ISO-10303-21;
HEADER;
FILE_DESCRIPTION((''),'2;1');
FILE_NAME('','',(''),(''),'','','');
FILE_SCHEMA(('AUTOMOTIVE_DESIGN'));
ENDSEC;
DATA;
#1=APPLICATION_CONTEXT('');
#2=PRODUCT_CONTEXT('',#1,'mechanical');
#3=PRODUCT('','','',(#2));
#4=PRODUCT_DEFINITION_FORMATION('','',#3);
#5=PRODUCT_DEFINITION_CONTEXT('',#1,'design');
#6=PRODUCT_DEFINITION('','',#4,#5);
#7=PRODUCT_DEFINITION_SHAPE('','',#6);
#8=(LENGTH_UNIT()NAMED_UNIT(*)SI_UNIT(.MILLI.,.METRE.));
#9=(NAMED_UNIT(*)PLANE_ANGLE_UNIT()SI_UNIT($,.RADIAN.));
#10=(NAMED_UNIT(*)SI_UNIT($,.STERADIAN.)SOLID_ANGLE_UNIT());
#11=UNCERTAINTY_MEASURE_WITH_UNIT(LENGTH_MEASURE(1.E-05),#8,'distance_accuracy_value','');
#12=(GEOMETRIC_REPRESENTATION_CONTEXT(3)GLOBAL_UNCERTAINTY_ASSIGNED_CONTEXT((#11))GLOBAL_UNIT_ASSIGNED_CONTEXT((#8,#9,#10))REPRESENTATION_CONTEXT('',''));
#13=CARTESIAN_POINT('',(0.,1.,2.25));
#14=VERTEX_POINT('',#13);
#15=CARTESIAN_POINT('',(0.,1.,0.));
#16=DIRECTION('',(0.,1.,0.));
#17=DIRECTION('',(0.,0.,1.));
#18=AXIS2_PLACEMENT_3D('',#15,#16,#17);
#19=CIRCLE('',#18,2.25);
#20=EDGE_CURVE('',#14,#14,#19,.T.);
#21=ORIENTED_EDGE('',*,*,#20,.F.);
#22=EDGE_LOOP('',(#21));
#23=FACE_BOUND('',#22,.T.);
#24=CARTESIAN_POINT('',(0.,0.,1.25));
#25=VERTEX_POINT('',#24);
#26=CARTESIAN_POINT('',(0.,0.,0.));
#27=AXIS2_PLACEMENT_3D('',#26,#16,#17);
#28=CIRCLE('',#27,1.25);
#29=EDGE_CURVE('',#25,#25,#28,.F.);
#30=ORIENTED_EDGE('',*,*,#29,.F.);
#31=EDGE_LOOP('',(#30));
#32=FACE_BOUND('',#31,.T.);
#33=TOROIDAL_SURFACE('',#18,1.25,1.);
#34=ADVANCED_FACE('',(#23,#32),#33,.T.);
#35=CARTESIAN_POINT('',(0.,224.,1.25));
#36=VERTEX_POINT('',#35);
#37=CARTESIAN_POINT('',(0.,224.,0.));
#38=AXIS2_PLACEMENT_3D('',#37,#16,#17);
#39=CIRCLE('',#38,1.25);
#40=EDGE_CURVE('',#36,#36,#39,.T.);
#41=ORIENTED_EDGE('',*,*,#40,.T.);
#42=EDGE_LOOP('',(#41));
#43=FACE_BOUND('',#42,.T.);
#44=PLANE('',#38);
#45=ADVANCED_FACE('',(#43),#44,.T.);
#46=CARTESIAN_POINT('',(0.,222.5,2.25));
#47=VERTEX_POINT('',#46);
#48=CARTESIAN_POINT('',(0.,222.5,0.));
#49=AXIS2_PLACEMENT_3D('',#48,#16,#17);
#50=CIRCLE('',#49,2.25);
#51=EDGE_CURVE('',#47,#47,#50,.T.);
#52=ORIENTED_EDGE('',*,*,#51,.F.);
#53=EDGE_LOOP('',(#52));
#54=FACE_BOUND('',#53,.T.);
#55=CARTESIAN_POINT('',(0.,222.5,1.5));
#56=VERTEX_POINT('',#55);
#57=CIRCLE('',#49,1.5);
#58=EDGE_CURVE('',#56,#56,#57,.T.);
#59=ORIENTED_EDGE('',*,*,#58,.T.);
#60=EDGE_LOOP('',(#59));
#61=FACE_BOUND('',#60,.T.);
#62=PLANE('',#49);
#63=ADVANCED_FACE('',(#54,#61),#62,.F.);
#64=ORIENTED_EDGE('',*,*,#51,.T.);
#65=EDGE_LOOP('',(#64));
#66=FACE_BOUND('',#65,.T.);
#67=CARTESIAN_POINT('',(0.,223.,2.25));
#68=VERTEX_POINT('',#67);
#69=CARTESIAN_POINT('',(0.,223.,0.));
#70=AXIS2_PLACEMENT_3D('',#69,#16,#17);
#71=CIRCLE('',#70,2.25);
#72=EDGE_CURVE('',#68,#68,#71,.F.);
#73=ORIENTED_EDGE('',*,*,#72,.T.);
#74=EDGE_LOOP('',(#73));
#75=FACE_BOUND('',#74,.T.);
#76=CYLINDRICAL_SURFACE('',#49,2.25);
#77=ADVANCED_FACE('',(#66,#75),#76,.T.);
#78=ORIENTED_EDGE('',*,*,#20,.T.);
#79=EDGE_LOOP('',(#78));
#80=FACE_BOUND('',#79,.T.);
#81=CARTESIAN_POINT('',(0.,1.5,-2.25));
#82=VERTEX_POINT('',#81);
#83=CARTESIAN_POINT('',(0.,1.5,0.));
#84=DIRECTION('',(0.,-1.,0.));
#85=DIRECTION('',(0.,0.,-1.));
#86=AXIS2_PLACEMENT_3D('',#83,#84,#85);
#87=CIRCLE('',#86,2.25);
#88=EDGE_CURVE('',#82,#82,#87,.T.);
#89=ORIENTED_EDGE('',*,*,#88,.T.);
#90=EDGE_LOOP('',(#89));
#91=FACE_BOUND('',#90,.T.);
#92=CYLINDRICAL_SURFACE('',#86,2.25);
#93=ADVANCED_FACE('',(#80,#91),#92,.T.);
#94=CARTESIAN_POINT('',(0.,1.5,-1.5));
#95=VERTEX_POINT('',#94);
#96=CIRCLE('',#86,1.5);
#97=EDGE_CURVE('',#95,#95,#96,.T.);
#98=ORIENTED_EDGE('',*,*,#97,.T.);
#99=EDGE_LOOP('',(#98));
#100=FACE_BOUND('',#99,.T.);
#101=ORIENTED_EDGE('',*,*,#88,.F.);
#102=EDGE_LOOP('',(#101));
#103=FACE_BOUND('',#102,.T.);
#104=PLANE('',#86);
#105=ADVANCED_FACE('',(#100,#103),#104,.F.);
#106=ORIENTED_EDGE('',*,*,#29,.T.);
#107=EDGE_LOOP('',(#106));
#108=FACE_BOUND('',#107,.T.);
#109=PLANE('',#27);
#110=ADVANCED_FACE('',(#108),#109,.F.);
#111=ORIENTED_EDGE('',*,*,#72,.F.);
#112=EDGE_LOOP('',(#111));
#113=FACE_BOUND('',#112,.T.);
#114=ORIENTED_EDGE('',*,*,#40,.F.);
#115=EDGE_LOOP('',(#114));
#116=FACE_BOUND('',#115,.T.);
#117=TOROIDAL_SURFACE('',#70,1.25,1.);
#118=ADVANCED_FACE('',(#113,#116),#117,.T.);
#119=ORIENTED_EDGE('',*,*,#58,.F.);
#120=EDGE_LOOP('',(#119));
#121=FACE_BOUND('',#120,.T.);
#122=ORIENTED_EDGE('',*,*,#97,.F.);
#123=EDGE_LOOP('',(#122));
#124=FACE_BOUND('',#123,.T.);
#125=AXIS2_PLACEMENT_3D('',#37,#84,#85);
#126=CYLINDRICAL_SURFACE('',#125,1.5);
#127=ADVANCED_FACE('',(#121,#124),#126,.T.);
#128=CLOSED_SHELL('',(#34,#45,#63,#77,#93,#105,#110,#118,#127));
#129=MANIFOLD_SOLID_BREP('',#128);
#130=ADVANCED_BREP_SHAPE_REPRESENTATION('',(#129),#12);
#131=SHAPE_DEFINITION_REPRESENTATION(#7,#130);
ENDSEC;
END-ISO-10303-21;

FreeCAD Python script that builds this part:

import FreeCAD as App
import Part
import Sketcher

V = App.Vector
Q = App.Units.Quantity


def edges_at(feature, points):
    """Names of the edges that pass closest to the given points."""
    edges = feature.Shape.Edges
    near = lambda p: min(range(len(edges)), key=lambda i: edges[i].distToShape(Part.Vertex(*p))[0])
    return sorted({f"Edge{near(p) + 1}" for p in points})

doc = App.newDocument("Part")
body = doc.addObject("PartDesign::Body", "Body")

sketch1 = body.newObject("Sketcher::SketchObject", "Sketch")
sketch1.AttachmentSupport = (doc.getObject("XZ_Plane"), [""])
sketch1.MapMode = "FlatFace"
sketch1.addGeometry(Part.Circle(V(0, 0, 0), V(0, 0, 1), 1.5), False)
sketch1.addConstraint(Sketcher.Constraint("Coincident", 0, 3, -1, 1))
sketch1.addConstraint(Sketcher.Constraint("Diameter", 0, Q("3 mm")))
pad1 = body.newObject("PartDesign::Pad", "Pad")
pad1.Profile = sketch1
pad1.Length = 224
pad1.Reversed = True

sketch2 = body.newObject("Sketcher::SketchObject", "Sketch001")
sketch2.AttachmentSupport = (doc.getObject("XZ_Plane"), [""])
sketch2.MapMode = "FlatFace"
sketch2.AttachmentOffset = App.Placement(V(0, 0, -224), App.Rotation())
sketch2.addGeometry(Part.Circle(V(0, 0, 0), V(0, 0, 1), 2.2), False)
sketch2.addConstraint(Sketcher.Constraint("Coincident", 0, 3, -1, 1))
sketch2.addConstraint(Sketcher.Constraint("Diameter", 0, Q("4.5 mm")))
pad2 = body.newObject("PartDesign::Pad", "Pad001")
pad2.Profile = sketch2
pad2.Length = 1.5
doc.recompute()

fillet = body.newObject("PartDesign::Fillet", "Fillet")
fillet.Base = (pad2, edges_at(pad2, [(0, 224, -2.25)]))
fillet.Radius = 1

sketch3 = body.newObject("Sketcher::SketchObject", "Sketch002")
sketch3.AttachmentSupport = (doc.getObject("XZ_Plane"), [""])
sketch3.MapMode = "FlatFace"
sketch3.AttachmentOffset = App.Placement(V(0, 0, -1.5), App.Rotation())
sketch3.addGeometry(Part.Circle(V(0, 0, 0), V(0, 0, 1), 2.2), False)
sketch3.addConstraint(Sketcher.Constraint("Coincident", 0, 3, -1, 1))
sketch3.addConstraint(Sketcher.Constraint("Diameter", 0, Q("4.5 mm")))
pad3 = body.newObject("PartDesign::Pad", "Pad002")
pad3.Profile = sketch3
pad3.Length = 1.5
doc.recompute()

fillet2 = body.newObject("PartDesign::Fillet", "Fillet001")
fillet2.Base = (pad3, edges_at(pad3, [(0, 0, -2.25)]))
fillet2.Radius = 1

doc.recompute()
